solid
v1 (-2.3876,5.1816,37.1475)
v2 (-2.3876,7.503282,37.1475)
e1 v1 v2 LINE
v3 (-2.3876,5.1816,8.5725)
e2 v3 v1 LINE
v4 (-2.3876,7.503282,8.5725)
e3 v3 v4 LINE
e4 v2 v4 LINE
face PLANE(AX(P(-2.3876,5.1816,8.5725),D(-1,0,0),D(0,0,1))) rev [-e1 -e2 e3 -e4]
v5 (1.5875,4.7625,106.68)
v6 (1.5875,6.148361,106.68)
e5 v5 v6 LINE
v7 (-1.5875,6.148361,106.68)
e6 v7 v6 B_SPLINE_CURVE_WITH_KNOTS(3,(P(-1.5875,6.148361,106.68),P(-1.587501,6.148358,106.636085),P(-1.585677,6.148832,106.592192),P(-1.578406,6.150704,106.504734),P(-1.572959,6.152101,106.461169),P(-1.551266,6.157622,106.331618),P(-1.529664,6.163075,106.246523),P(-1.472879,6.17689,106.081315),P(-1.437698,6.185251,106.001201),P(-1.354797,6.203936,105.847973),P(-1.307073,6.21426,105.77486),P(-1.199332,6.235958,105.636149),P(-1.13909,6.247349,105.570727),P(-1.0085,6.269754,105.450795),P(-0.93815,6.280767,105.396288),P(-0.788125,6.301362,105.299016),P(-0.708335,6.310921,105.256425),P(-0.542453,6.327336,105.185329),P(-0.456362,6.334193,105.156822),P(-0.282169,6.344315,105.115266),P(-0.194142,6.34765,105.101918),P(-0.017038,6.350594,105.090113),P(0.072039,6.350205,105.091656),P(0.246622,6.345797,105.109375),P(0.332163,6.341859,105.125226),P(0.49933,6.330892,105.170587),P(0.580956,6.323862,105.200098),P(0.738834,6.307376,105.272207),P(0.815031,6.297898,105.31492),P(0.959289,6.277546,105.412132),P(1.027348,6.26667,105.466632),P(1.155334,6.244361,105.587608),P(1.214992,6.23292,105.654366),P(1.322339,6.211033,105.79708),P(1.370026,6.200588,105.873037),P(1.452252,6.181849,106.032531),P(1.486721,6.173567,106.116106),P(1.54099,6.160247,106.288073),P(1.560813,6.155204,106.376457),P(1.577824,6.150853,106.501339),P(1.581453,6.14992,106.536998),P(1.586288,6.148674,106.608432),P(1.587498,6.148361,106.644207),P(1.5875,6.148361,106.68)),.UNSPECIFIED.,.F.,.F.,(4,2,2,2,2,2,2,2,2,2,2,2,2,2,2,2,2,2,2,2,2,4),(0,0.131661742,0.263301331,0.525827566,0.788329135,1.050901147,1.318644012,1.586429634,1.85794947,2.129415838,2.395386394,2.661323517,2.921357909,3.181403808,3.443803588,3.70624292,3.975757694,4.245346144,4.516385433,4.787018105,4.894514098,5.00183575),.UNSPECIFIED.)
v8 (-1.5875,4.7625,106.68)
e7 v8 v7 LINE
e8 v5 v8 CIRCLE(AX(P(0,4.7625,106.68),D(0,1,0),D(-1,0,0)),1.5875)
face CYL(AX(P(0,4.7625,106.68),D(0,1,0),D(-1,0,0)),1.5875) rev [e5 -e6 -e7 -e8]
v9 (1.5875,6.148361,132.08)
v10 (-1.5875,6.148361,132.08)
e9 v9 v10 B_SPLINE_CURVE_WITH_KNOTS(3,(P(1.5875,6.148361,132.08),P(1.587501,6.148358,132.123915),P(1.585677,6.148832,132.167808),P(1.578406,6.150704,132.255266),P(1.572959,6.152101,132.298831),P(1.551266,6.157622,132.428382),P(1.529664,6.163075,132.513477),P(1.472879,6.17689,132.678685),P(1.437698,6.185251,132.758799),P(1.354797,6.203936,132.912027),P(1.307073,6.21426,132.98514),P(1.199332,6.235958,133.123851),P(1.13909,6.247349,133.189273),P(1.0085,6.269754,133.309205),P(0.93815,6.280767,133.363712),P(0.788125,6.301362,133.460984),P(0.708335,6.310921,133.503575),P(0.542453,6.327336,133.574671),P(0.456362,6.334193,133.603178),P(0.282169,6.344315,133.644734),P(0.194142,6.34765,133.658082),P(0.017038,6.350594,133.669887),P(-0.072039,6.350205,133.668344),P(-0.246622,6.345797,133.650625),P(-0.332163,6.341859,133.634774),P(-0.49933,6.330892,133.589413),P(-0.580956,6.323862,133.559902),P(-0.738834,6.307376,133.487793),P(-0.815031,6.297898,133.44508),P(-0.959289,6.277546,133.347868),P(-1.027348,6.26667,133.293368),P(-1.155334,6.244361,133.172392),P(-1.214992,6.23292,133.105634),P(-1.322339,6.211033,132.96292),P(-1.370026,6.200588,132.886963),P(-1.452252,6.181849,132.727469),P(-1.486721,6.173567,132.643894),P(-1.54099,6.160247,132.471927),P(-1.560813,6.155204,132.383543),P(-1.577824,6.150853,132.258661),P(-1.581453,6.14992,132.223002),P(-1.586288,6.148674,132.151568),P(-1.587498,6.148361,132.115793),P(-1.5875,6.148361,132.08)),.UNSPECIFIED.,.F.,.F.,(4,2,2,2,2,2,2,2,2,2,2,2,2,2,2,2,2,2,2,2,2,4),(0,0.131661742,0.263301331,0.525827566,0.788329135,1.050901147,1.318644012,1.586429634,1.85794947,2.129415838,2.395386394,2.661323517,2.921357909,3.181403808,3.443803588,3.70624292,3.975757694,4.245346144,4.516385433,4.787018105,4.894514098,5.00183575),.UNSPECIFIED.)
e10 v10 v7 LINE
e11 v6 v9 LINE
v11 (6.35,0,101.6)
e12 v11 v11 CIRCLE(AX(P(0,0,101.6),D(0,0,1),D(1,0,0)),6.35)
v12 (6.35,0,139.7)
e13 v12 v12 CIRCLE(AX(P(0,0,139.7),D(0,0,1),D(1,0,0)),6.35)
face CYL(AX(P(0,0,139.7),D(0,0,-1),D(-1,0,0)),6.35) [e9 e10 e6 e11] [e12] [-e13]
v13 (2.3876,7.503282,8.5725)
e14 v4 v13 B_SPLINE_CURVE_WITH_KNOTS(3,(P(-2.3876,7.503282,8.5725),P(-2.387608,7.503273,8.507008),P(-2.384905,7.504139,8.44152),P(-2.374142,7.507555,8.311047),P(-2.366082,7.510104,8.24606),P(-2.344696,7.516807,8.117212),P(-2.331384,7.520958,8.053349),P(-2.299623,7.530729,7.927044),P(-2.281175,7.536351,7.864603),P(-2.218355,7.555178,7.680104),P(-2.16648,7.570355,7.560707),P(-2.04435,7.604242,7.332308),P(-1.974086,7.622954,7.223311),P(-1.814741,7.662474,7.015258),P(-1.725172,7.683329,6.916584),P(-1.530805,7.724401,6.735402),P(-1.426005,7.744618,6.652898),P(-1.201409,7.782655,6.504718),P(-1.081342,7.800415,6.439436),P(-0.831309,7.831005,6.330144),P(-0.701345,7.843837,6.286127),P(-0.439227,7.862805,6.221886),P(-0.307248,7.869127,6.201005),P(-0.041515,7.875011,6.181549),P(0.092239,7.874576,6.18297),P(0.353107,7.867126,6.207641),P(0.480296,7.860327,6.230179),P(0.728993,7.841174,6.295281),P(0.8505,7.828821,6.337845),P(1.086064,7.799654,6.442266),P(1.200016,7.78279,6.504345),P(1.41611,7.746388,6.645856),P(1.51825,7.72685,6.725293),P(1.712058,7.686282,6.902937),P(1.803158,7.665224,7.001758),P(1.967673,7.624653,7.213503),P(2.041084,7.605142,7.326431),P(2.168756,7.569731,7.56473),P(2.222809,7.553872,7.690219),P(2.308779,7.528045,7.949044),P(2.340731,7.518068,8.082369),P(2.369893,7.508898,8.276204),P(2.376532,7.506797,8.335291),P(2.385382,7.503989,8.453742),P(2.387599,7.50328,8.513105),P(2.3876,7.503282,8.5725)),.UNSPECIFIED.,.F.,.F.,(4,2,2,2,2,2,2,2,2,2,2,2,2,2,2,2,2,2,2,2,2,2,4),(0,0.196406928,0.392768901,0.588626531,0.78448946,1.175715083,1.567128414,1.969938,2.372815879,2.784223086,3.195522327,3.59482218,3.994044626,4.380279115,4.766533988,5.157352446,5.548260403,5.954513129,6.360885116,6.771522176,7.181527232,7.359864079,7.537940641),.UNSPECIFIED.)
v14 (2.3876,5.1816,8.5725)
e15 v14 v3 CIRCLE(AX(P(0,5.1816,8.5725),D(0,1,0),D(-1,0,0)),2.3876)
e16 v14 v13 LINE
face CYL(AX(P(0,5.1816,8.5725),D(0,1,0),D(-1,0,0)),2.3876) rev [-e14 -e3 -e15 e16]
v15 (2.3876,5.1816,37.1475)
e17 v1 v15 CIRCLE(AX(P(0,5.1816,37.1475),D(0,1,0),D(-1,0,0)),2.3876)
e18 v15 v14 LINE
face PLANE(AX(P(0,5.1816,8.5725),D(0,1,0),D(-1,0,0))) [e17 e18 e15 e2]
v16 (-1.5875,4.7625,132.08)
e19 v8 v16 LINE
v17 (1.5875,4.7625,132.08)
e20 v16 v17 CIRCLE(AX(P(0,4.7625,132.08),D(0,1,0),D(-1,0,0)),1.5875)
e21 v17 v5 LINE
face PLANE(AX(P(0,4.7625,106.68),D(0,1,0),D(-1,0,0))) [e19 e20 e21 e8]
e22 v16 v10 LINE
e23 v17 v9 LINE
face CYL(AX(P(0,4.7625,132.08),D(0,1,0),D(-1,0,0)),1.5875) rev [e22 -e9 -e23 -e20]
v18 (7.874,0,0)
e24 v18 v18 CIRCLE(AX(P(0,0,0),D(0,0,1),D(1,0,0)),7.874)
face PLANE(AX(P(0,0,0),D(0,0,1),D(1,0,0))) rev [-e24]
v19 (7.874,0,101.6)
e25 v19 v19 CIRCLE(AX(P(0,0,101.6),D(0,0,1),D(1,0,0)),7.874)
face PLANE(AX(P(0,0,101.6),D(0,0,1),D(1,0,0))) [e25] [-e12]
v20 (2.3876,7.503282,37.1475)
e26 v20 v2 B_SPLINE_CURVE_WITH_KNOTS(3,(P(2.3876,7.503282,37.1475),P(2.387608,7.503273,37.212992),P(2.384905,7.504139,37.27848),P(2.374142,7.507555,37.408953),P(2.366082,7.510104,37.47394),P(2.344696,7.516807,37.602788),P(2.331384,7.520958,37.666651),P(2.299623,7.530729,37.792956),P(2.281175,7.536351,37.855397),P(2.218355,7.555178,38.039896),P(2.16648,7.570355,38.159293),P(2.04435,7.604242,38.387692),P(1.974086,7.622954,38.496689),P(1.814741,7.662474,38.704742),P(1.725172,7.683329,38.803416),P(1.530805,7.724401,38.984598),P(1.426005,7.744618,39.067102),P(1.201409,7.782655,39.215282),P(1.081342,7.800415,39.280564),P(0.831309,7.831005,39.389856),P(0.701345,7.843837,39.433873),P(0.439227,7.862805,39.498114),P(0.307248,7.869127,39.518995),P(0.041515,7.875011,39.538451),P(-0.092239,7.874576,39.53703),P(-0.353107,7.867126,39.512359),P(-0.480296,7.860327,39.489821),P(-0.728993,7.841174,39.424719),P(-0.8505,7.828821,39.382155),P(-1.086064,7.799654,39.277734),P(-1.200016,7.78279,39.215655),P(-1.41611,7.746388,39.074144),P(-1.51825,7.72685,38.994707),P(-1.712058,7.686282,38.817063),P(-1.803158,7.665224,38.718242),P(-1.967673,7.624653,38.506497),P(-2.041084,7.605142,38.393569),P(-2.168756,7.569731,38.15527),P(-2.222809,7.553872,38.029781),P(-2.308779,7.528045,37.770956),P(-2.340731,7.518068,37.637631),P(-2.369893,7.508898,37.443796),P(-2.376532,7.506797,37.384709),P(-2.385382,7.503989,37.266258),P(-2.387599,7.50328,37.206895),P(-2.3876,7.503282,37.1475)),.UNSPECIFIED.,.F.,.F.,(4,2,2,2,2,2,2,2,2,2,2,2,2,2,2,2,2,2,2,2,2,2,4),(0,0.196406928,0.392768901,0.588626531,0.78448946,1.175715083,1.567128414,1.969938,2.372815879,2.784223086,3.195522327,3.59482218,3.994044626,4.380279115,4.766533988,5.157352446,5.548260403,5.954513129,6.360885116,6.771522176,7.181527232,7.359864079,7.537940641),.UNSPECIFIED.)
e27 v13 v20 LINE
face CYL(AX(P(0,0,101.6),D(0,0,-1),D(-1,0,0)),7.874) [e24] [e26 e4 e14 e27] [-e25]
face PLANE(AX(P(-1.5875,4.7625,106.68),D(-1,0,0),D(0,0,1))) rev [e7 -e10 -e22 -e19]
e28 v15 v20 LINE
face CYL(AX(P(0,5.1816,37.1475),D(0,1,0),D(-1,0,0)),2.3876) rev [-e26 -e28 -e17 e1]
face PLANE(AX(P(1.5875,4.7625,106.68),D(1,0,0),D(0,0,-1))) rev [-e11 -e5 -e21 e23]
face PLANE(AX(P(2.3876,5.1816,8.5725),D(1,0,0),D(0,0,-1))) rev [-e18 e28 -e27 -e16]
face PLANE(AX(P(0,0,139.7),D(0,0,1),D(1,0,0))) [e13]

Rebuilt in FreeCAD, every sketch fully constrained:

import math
import FreeCAD as App
import Part
import Sketcher

V = App.Vector
Q = App.Units.Quantity

doc = App.newDocument("Part")
params = doc.addObject("Spreadsheet::Sheet", "Params")
for row, (alias, value) in enumerate([
    ("sketch1_diameter", "0.62 in"),
    ("pad1_length", "4 in"),
    ("sketch2_diameter", "0.5 in"),
    ("pad2_length", "1.5 in"),
    ("sketch3_height", "1 in"),
    ("sketch3_radius", "0.0625 in"),
    ("pocket1_length", "0.0625 in"),
    ("sketch4_radius", "0.094 in"),
    ("sketch4_height", "1.125 in"),
    ("pocket2_length", "0.06 in"),
    ("pocket2_length2", "0.046 in"),
], start=1):
    params.set(f"A{row}", alias)
    params.set(f"B{row}", "=" + value)
    params.setAlias(f"B{row}", alias)

body = doc.addObject("PartDesign::Body", "Body")

# Sketch on XY plane
sketch1 = body.newObject("Sketcher::SketchObject", "Sketch")
sketch1.AttachmentSupport = (doc.getObject("XY_Plane"), [""])
sketch1.MapMode = "FlatFace"
sketch1.addGeometry(Part.Circle(V(0, 0, 0), V(0, 0, 1), 7.874), False)
sketch1.addConstraint(Sketcher.Constraint("Coincident", 0, 3, -1, 1))
sketch1.addConstraint(Sketcher.Constraint("Diameter", 0, Q("0.62 in")))
sketch1.setExpression("Constraints[1]", "Params.sketch1_diameter")
pad1 = body.newObject("PartDesign::Pad", "Pad")
pad1.Profile = sketch1
pad1.setExpression("Length", "Params.pad1_length")

# Sketch on XY plane
sketch2 = body.newObject("Sketcher::SketchObject", "Sketch001")
sketch2.AttachmentSupport = (doc.getObject("XY_Plane"), [""])
sketch2.MapMode = "FlatFace"
sketch2.AttachmentOffset = App.Placement(V(0, 0, 4 * 25.4), App.Rotation())
sketch2.addGeometry(Part.Circle(V(0, 0, 0), V(0, 0, 1), 6.35), False)
sketch2.addConstraint(Sketcher.Constraint("Coincident", 0, 3, -1, 1))
sketch2.addConstraint(Sketcher.Constraint("Diameter", 0, Q("0.5 in")))
sketch2.setExpression("Constraints[1]", "Params.sketch2_diameter")
pad2 = body.newObject("PartDesign::Pad", "Pad001")
pad2.Profile = sketch2
pad2.setExpression("Length", "Params.pad2_length")

# Sketch on XZ plane
sketch3 = body.newObject("Sketcher::SketchObject", "Sketch002")
sketch3.AttachmentSupport = (doc.getObject("XZ_Plane"), [""])
sketch3.MapMode = "FlatFace"
sketch3.AttachmentOffset = App.Placement(V(0, 0, -0.25 * 25.4), App.Rotation())
sketch3.addGeometry(Part.LineSegment(V(1.5875, 132.08, 0), V(1.5875, 106.68, 0)), False)
sketch3.addGeometry(Part.ArcOfCircle(Part.Circle(V(0, 106.68, 0), V(0, 0, 1), 1.5875), math.radians(180), math.radians(360)), False)
sketch3.addGeometry(Part.LineSegment(V(-1.5875, 106.68, 0), V(-1.5875, 132.08, 0)), False)
sketch3.addGeometry(Part.ArcOfCircle(Part.Circle(V(0, 132.08, 0), V(0, 0, 1), 1.5875), math.radians(0), math.radians(180)), False)
sketch3.addConstraint(Sketcher.Constraint("Tangent", 0, 2, 1, 2))
sketch3.addConstraint(Sketcher.Constraint("Tangent", 1, 1, 2, 1))
sketch3.addConstraint(Sketcher.Constraint("Tangent", 2, 2, 3, 2))
sketch3.addConstraint(Sketcher.Constraint("Tangent", 3, 1, 0, 1))
sketch3.addConstraint(Sketcher.Constraint("Vertical", 0))
sketch3.addConstraint(Sketcher.Constraint("Vertical", 2))
sketch3.addConstraint(Sketcher.Constraint("PointOnObject", 1, 3, -2))
sketch3.addConstraint(Sketcher.Constraint("DistanceY", 0, 2, 0, 1, Q("1 in")))
sketch3.addConstraint(Sketcher.Constraint("Radius", 1, Q("0.0625 in")))
sketch3.addConstraint(Sketcher.Constraint("DistanceY", -1, 1, 1, 3, Q("4.2 in")))
sketch3.setExpression("Constraints[7]", "Params.sketch3_height")
sketch3.setExpression("Constraints[8]", "Params.sketch3_radius")
pocket1 = body.newObject("PartDesign::Pocket", "Pocket")
pocket1.Profile = sketch3
pocket1.setExpression("Length", "Params.pocket1_length")
pocket1.Reversed = True

# Sketch on XZ plane
sketch4 = body.newObject("Sketcher::SketchObject", "Sketch003")
sketch4.AttachmentSupport = (doc.getObject("XZ_Plane"), [""])
sketch4.MapMode = "FlatFace"
sketch4.AttachmentOffset = App.Placement(V(0, 0, -0.25 * 25.4), App.Rotation())
sketch4.addGeometry(Part.LineSegment(V(2.3876, 37.1475, 0), V(2.3876, 8.5725, 0)), False)
sketch4.addGeometry(Part.ArcOfCircle(Part.Circle(V(0, 8.5725, 0), V(0, 0, 1), 2.3876), math.radians(180), math.radians(360)), False)
sketch4.addGeometry(Part.LineSegment(V(-2.3876, 8.5725, 0), V(-2.3876, 37.1475, 0)), False)
sketch4.addGeometry(Part.ArcOfCircle(Part.Circle(V(0, 37.1475, 0), V(0, 0, 1), 2.3876), math.radians(0), math.radians(180)), False)
sketch4.addConstraint(Sketcher.Constraint("Tangent", 0, 2, 1, 2))
sketch4.addConstraint(Sketcher.Constraint("Tangent", 1, 1, 2, 1))
sketch4.addConstraint(Sketcher.Constraint("Tangent", 2, 2, 3, 2))
sketch4.addConstraint(Sketcher.Constraint("Tangent", 3, 1, 0, 1))
sketch4.addConstraint(Sketcher.Constraint("Vertical", 0))
sketch4.addConstraint(Sketcher.Constraint("Vertical", 2))
sketch4.addConstraint(Sketcher.Constraint("PointOnObject", 1, 3, -2))
sketch4.addConstraint(Sketcher.Constraint("Radius", 1, Q("0.094 in")))
sketch4.addConstraint(Sketcher.Constraint("DistanceY", 0, 2, 0, 1, Q("1.125 in")))
sketch4.addConstraint(Sketcher.Constraint("DistanceY", -1, 1, 1, 3, Q("0.3375 in")))
sketch4.setExpression("Constraints[7]", "Params.sketch4_radius")
sketch4.setExpression("Constraints[8]", "Params.sketch4_height")
pocket2 = body.newObject("PartDesign::Pocket", "Pocket001")
pocket2.Profile = sketch4
pocket2.Type = "TwoLengths"
pocket2.setExpression("Length", "Params.pocket2_length")
pocket2.setExpression("Length2", "Params.pocket2_length2")

doc.recompute()
